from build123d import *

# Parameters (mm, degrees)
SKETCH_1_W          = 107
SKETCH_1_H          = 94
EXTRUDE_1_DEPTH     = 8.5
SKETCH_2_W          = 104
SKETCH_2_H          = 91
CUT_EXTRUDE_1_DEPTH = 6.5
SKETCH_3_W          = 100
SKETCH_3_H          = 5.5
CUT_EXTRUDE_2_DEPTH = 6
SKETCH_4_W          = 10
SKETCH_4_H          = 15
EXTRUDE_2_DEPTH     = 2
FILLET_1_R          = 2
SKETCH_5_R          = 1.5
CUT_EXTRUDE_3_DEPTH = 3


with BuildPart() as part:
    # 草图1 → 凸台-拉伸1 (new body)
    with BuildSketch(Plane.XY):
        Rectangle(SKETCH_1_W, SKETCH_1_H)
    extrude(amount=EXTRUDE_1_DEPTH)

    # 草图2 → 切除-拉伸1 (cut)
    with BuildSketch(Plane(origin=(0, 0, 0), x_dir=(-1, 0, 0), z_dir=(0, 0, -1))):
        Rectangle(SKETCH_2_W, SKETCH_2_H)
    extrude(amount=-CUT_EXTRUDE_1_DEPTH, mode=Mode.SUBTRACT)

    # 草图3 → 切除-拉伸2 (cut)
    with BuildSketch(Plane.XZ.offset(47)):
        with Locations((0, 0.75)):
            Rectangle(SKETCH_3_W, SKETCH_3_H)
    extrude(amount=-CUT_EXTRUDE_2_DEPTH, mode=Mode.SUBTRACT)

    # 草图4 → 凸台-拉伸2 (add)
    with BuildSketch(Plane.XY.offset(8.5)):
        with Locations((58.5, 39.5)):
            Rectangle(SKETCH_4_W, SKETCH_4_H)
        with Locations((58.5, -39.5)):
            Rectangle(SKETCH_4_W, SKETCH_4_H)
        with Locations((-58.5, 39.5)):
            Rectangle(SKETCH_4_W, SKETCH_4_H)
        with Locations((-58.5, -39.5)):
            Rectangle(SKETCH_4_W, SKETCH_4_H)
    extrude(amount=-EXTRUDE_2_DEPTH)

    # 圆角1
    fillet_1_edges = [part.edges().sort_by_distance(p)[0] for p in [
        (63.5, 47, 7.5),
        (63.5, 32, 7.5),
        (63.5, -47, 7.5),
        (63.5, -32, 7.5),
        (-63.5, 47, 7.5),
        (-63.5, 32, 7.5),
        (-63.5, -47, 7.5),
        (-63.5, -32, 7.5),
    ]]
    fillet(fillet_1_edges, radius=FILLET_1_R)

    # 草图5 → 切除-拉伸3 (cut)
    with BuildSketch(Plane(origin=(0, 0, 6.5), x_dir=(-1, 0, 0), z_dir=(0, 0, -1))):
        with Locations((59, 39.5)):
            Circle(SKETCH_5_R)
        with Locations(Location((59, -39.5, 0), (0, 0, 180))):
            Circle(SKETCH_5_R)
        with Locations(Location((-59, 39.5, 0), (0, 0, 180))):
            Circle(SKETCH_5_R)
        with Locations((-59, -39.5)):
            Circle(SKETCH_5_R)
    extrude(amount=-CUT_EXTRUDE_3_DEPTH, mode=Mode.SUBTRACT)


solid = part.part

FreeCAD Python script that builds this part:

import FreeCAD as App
import Part
import Sketcher


def edges_at(feature, points):
    """Names of the edges that pass closest to the given points."""
    edges = feature.Shape.Edges
    near = lambda p: min(range(len(edges)), key=lambda i: edges[i].distToShape(Part.Vertex(*p))[0])
    return sorted({f"Edge{near(p) + 1}" for p in points})


def add_polygon(sketch, points):
    """Adds a closed chain of lines whose ends are joined by coincident constraints."""
    first, n = sketch.GeometryCount, len(points)
    for a, b in zip(points, points[1:] + points[:1]):
        sketch.addGeometry(Part.LineSegment(App.Vector(*a, 0), App.Vector(*b, 0)), False)
    for i in range(n):
        sketch.addConstraint(Sketcher.Constraint("Coincident", first + i, 2, first + (i + 1) % n, 1))

doc = App.newDocument("Part")
params = doc.addObject("Spreadsheet::Sheet", "Params")
for row, (alias, value) in enumerate([
    ("sketch1_width", "107 mm"),
    ("sketch1_height", "94 mm"),
    ("pad1_length", "8.5 mm"),
    ("sketch2_width", "104 mm"),
    ("sketch2_height", "91 mm"),
    ("pocket1_length", "6.5 mm"),
    ("sketch3_width", "100 mm"),
    ("sketch3_height", "5.5 mm"),
    ("pocket2_length", "6 mm"),
    ("sketch4_width", "10 mm"),
    ("sketch4_height", "15 mm"),
    ("pad2_length", "2 mm"),
    ("fillet_radius", "2 mm"),
    ("sketch5_diameter", "3 mm"),
    ("pocket3_length", "3 mm"),
], start=1):
    params.set(f"A{row}", alias)
    params.set(f"B{row}", "=" + value)
    params.setAlias(f"B{row}", alias)

body = doc.addObject("PartDesign::Body", "Body")

sketch1 = doc.addObject("Sketcher::SketchObject", "Sketch")
body.addObject(sketch1)
sketch1.AttachmentSupport = (doc.XY_Plane, [""])
sketch1.MapMode = "FlatFace"
add_polygon(sketch1, [(-54, 47), (-54, -47), (54, -47), (54, 47)])
sketch1.addConstraint(Sketcher.Constraint("Vertical", 0))
sketch1.addConstraint(Sketcher.Constraint("Horizontal", 1))
sketch1.addConstraint(Sketcher.Constraint("Vertical", 2))
sketch1.addConstraint(Sketcher.Constraint("Horizontal", 3))
sketch1.addConstraint(Sketcher.Constraint("Symmetric", 0, 2, 2, 2, -1, 1))
sketch1.addConstraint(Sketcher.Constraint("DistanceX", 1, 1, 1, 2, 107.0))
sketch1.addConstraint(Sketcher.Constraint("DistanceY", 0, 2, 0, 1, 94.0))
sketch1.setExpression("Constraints[9]", "Params.sketch1_width")
sketch1.setExpression("Constraints[10]", "Params.sketch1_height")
pad1 = doc.addObject("PartDesign::Pad", "Pad")
body.addObject(pad1)
pad1.Profile = sketch1
pad1.setExpression("Length", "Params.pad1_length")

sketch2 = doc.addObject("Sketcher::SketchObject", "Sketch001")
body.addObject(sketch2)
sketch2.AttachmentSupport = (doc.XY_Plane, [""])
sketch2.MapMode = "FlatFace"
add_polygon(sketch2, [(52, 46), (52, -46), (-52, -46), (-52, 46)])
sketch2.addConstraint(Sketcher.Constraint("Vertical", 0))
sketch2.addConstraint(Sketcher.Constraint("Horizontal", 1))
sketch2.addConstraint(Sketcher.Constraint("Vertical", 2))
sketch2.addConstraint(Sketcher.Constraint("Horizontal", 3))
sketch2.addConstraint(Sketcher.Constraint("Symmetric", 0, 2, 2, 2, -1, 1))
sketch2.addConstraint(Sketcher.Constraint("DistanceX", 1, 2, 1, 1, 104.0))
sketch2.addConstraint(Sketcher.Constraint("DistanceY", 0, 2, 0, 1, 91.0))
sketch2.setExpression("Constraints[9]", "Params.sketch2_width")
sketch2.setExpression("Constraints[10]", "Params.sketch2_height")
pocket1 = doc.addObject("PartDesign::Pocket", "Pocket")
body.addObject(pocket1)
pocket1.Profile = sketch2
pocket1.setExpression("Length", "Params.pocket1_length")
pocket1.Reversed = True

sketch3 = doc.addObject("Sketcher::SketchObject", "Sketch002")
body.addObject(sketch3)
sketch3.AttachmentSupport = (doc.XZ_Plane, [""])
sketch3.MapMode = "FlatFace"
sketch3.AttachmentOffset = App.Placement(App.Vector(0, 0, 47), App.Rotation())
add_polygon(sketch3, [(-50, 4), (-50, -2), (50, -2), (50, 4)])
sketch3.addConstraint(Sketcher.Constraint("Vertical", 0))
sketch3.addConstraint(Sketcher.Constraint("Horizontal", 1))
sketch3.addConstraint(Sketcher.Constraint("Vertical", 2))
sketch3.addConstraint(Sketcher.Constraint("Horizontal", 3))
sketch3.addConstraint(Sketcher.Constraint("DistanceX", 1, 1, 1, 2, 100.0))
sketch3.addConstraint(Sketcher.Constraint("DistanceY", 0, 2, 0, 1, 5.5))
sketch3.addConstraint(Sketcher.Constraint("DistanceX", 0, 2, -1, 1, 50.0))
sketch3.addConstraint(Sketcher.Constraint("DistanceY", 0, 2, -1, 1, 2.0))
sketch3.setExpression("Constraints[8]", "Params.sketch3_width")
sketch3.setExpression("Constraints[9]", "Params.sketch3_height")
pocket2 = doc.addObject("PartDesign::Pocket", "Pocket001")
body.addObject(pocket2)
pocket2.Profile = sketch3
pocket2.setExpression("Length", "Params.pocket2_length")

sketch4 = doc.addObject("Sketcher::SketchObject", "Sketch003")
body.addObject(sketch4)
sketch4.AttachmentSupport = (doc.XY_Plane, [""])
sketch4.MapMode = "FlatFace"
sketch4.AttachmentOffset = App.Placement(App.Vector(0, 0, 8.5), App.Rotation())
add_polygon(sketch4, [(54, 47), (54, 32), (64, 32), (64, 47)])
add_polygon(sketch4, [(54, -32), (54, -47), (64, -47), (64, -32)])
add_polygon(sketch4, [(-64, 47), (-64, 32), (-54, 32), (-54, 47)])
add_polygon(sketch4, [(-64, -32), (-64, -47), (-54, -47), (-54, -32)])
sketch4.addConstraint(Sketcher.Constraint("Vertical", 0))
sketch4.addConstraint(Sketcher.Constraint("Horizontal", 1))
sketch4.addConstraint(Sketcher.Constraint("Vertical", 2))
sketch4.addConstraint(Sketcher.Constraint("Horizontal", 3))
sketch4.addConstraint(Sketcher.Constraint("Vertical", 4))
sketch4.addConstraint(Sketcher.Constraint("Horizontal", 5))
sketch4.addConstraint(Sketcher.Constraint("Vertical", 6))
sketch4.addConstraint(Sketcher.Constraint("Horizontal", 7))
sketch4.addConstraint(Sketcher.Constraint("Vertical", 8))
sketch4.addConstraint(Sketcher.Constraint("Horizontal", 9))
sketch4.addConstraint(Sketcher.Constraint("Vertical", 10))
sketch4.addConstraint(Sketcher.Constraint("Horizontal", 11))
sketch4.addConstraint(Sketcher.Constraint("Vertical", 12))
sketch4.addConstraint(Sketcher.Constraint("Horizontal", 13))
sketch4.addConstraint(Sketcher.Constraint("Vertical", 14))
sketch4.addConstraint(Sketcher.Constraint("Horizontal", 15))
sketch4.addConstraint(Sketcher.Constraint("Symmetric", 6, 2, 8, 2, -1, 1))
sketch4.addConstraint(Sketcher.Constraint("Symmetric", 4, 2, 10, 2, -1, 1))
sketch4.addConstraint(Sketcher.Constraint("Symmetric", 2, 2, 12, 2, -1, 1))
sketch4.addConstraint(Sketcher.Constraint("Symmetric", 0, 2, 14, 2, -1, 1))
sketch4.addConstraint(Sketcher.Constraint("Symmetric", 1, 2, 8, 2, -2))
sketch4.addConstraint(Sketcher.Constraint("Symmetric", 3, 2, 10, 2, -2))
sketch4.addConstraint(Sketcher.Constraint("DistanceX", 1, 1, 1, 2, 10.0))
sketch4.addConstraint(Sketcher.Constraint("DistanceY", 0, 2, 0, 1, 15.0))
sketch4.addConstraint(Sketcher.Constraint("DistanceY", -1, 1, 0, 2, 32.0))
sketch4.addConstraint(Sketcher.Constraint("DistanceX", 8, 2, 0, 2, 117.0))
sketch4.setExpression("Constraints[38]", "Params.sketch4_width")
sketch4.setExpression("Constraints[39]", "Params.sketch4_height")
pad2 = doc.addObject("PartDesign::Pad", "Pad001")
body.addObject(pad2)
pad2.Profile = sketch4
pad2.setExpression("Length", "Params.pad2_length")
pad2.Reversed = True
doc.recompute()

fillet = doc.addObject("PartDesign::Fillet", "Fillet")
body.addObject(fillet)
fillet.Base = (pad2, edges_at(pad2, [
    (63.5, 47, 7.5),
    (63.5, 32, 7.5),
    (63.5, -47, 7.5),
    (63.5, -32, 7.5),
    (-63.5, 47, 7.5),
    (-63.5, 32, 7.5),
    (-63.5, -47, 7.5),
    (-63.5, -32, 7.5),
]))
fillet.setExpression("Radius", "Params.fillet_radius")

sketch5 = doc.addObject("Sketcher::SketchObject", "Sketch004")
body.addObject(sketch5)
sketch5.AttachmentSupport = (doc.XY_Plane, [""])
sketch5.MapMode = "FlatFace"
sketch5.AttachmentOffset = App.Placement(App.Vector(0, 0, 6.5), App.Rotation())
sketch5.addGeometry(Part.Circle(App.Vector(-59, 39.5, 0), App.Vector(0, 0, 1), 1.5), False)
sketch5.addGeometry(Part.Circle(App.Vector(-59, -39.5, 0), App.Vector(0, 0, 1), 1.5), False)
sketch5.addGeometry(Part.Circle(App.Vector(59, 39.5, 0), App.Vector(0, 0, 1), 1.5), False)
sketch5.addGeometry(Part.Circle(App.Vector(59, -39.5, 0), App.Vector(0, 0, 1), 1.5), False)
sketch5.addConstraint(Sketcher.Constraint("Equal", 0, 1))
sketch5.addConstraint(Sketcher.Constraint("Equal", 1, 2))
sketch5.addConstraint(Sketcher.Constraint("Equal", 2, 3))
sketch5.addConstraint(Sketcher.Constraint("Symmetric", 1, 3, 2, 3, -1, 1))
sketch5.addConstraint(Sketcher.Constraint("Symmetric", 0, 3, 3, 3, -1, 1))
sketch5.addConstraint(Sketcher.Constraint("Symmetric", 0, 3, 2, 3, -2))
sketch5.addConstraint(Sketcher.Constraint("Diameter", 0, 3.0))
sketch5.addConstraint(Sketcher.Constraint("DistanceX", 0, 3, -1, 1, 59.0))
sketch5.addConstraint(Sketcher.Constraint("DistanceY", 1, 3, 0, 3, 79.0))
sketch5.setExpression("Constraints[6]", "Params.sketch5_diameter")
pocket3 = doc.addObject("PartDesign::Pocket", "Pocket002")
body.addObject(pocket3)
pocket3.Profile = sketch5
pocket3.setExpression("Length", "Params.pocket3_length")
pocket3.Reversed = True

doc.recompute()
